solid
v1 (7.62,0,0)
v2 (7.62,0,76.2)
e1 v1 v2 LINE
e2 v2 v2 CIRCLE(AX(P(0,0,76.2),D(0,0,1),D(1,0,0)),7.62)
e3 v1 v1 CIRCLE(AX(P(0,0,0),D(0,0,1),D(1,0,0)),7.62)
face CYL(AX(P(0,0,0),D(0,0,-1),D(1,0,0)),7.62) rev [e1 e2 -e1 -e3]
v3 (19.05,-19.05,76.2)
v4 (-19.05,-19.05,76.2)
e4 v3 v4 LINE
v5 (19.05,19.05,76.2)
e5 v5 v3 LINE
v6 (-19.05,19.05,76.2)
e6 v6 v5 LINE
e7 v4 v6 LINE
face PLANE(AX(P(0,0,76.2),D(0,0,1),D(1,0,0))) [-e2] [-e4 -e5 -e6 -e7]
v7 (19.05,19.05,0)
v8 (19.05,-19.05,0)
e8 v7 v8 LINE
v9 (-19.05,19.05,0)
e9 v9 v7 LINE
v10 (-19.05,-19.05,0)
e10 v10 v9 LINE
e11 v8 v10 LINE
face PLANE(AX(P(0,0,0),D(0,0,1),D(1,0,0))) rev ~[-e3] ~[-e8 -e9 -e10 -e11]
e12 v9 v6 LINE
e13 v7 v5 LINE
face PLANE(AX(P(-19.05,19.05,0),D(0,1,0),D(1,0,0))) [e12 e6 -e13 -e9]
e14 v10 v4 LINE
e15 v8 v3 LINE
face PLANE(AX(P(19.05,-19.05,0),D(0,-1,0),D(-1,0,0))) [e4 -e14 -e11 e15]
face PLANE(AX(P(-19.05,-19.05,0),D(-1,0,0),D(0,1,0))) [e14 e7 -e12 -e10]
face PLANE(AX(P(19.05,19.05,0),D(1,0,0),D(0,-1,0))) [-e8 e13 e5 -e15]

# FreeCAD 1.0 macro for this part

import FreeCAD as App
import Part
import Sketcher
from FreeCAD import Vector
Q = App.Units.Quantity

doc = App.newDocument("Part")
body = doc.addObject("PartDesign::Body", "Body")

# Sketch on XY plane
sketch1 = body.newObject("Sketcher::SketchObject", "Sketch")
sketch1.AttachmentSupport = (doc.getObject("XY_Plane"), [""])
sketch1.MapMode = "FlatFace"
sketch1.addGeometry(Part.LineSegment(Vector(-19.05, -19.05, 0), Vector(19.05, -19.05, 0)), False)
sketch1.addGeometry(Part.LineSegment(Vector(19.05, -19.05, 0), Vector(19.05, 19.05, 0)), False)
sketch1.addGeometry(Part.LineSegment(Vector(19.05, 19.05, 0), Vector(-19.05, 19.05, 0)), False)
sketch1.addGeometry(Part.LineSegment(Vector(-19.05, 19.05, 0), Vector(-19.05, -19.05, 0)), False)
sketch1.addGeometry(Part.Circle(Vector(0, 0, 0), Vector(0, 0, 1), 7.62), False)
sketch1.addConstraint(Sketcher.Constraint("Coincident", 0, 2, 1, 1))
sketch1.addConstraint(Sketcher.Constraint("Coincident", 1, 2, 2, 1))
sketch1.addConstraint(Sketcher.Constraint("Coincident", 2, 2, 3, 1))
sketch1.addConstraint(Sketcher.Constraint("Coincident", 3, 2, 0, 1))
sketch1.addConstraint(Sketcher.Constraint("Horizontal", 0))
sketch1.addConstraint(Sketcher.Constraint("Vertical", 1))
sketch1.addConstraint(Sketcher.Constraint("Horizontal", 2))
sketch1.addConstraint(Sketcher.Constraint("Vertical", 3))
sketch1.addConstraint(Sketcher.Constraint("Coincident", 4, 3, -1, 1))
sketch1.addConstraint(Sketcher.Constraint("Symmetric", 0, 2, 2, 2, -1, 1))
sketch1.addConstraint(Sketcher.Constraint("Equal", 2, 1))
sketch1.addConstraint(Sketcher.Constraint("Diameter", 4, Q("0.6 in")))
sketch1.addConstraint(Sketcher.Constraint("DistanceX", 0, 1, 0, 2, Q("1.5 in")))
pad1 = body.newObject("PartDesign::Pad", "Pad")
pad1.Profile = sketch1
pad1.Length = Q("3 in")

doc.recompute()
